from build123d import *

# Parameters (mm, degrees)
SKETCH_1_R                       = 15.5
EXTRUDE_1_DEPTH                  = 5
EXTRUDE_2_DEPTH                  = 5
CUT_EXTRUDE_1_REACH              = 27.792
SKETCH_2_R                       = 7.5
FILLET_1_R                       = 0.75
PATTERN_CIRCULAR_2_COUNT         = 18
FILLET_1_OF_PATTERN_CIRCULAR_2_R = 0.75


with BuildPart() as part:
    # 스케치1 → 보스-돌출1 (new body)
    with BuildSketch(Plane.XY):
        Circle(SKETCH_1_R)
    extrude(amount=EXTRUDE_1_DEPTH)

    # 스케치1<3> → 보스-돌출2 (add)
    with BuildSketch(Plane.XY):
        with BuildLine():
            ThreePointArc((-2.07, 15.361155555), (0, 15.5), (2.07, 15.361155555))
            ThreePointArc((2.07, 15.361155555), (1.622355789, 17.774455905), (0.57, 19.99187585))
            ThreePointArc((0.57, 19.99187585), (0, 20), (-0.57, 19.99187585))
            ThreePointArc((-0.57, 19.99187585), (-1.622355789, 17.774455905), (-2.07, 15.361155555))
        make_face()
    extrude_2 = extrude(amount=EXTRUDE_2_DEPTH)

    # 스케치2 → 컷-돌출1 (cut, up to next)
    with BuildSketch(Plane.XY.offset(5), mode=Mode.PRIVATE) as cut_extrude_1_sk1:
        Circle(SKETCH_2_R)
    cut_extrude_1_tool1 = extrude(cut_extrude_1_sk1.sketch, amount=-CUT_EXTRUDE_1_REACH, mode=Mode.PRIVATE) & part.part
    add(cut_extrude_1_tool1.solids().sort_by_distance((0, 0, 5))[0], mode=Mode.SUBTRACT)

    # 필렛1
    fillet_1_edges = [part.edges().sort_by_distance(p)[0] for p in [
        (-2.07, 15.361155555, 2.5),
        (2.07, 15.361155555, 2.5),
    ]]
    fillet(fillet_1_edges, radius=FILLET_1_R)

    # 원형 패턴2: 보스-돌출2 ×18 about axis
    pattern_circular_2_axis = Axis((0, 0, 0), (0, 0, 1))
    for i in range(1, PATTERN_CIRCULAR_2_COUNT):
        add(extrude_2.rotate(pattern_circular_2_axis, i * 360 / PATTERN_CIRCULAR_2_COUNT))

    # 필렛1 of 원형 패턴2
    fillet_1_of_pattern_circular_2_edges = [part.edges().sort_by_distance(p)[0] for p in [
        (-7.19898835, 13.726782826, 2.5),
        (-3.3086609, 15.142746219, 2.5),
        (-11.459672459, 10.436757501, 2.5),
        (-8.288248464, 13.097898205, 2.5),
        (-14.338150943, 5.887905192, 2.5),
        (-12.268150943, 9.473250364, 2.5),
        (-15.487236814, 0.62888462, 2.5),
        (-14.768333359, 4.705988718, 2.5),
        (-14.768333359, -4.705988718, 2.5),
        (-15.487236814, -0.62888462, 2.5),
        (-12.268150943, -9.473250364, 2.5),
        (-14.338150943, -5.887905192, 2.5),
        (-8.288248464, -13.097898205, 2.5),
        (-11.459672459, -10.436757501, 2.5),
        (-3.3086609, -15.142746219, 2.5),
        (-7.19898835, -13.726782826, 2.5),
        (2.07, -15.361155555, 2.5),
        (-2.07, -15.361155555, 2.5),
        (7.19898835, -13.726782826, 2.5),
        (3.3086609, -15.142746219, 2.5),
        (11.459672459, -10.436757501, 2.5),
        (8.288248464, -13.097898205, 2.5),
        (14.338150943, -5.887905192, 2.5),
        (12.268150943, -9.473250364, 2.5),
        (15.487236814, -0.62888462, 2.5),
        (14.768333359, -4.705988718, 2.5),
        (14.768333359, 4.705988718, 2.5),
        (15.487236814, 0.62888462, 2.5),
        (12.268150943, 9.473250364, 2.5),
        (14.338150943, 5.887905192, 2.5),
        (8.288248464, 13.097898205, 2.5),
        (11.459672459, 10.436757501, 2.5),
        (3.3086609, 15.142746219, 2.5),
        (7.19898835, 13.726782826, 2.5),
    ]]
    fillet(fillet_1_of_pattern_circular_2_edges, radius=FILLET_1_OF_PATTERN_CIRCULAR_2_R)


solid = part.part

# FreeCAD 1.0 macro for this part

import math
import FreeCAD as App
import Part
import Sketcher

V = App.Vector
Q = App.Units.Quantity


def edges_at(feature, points):
    """Names of the edges that pass closest to the given points."""
    edges = feature.Shape.Edges
    near = lambda p: min(range(len(edges)), key=lambda i: edges[i].distToShape(Part.Vertex(*p))[0])
    return sorted({f"Edge{near(p) + 1}" for p in points})

doc = App.newDocument("Part")
params = doc.addObject("Spreadsheet::Sheet", "Params")
for row, (alias, value) in enumerate([
    ("sketch1_diameter", "31 mm"),
    ("pad1_length", "5 mm"),
    ("sketch2_radius", "20 mm"),
    ("sketch2_radius2", "15.5 mm"),
    ("pad2_length", "5 mm"),
    ("sketch3_diameter", "15 mm"),
    ("fillet_radius", "0.75 mm"),
    ("fillet2_radius", "0.75 mm"),
], start=1):
    params.set(f"A{row}", alias)
    params.set(f"B{row}", "=" + value)
    params.setAlias(f"B{row}", alias)

body = doc.addObject("PartDesign::Body", "Body")

# Sketch on XY plane
sketch1 = body.newObject("Sketcher::SketchObject", "Sketch")
sketch1.AttachmentSupport = (doc.getObject("XY_Plane"), [""])
sketch1.MapMode = "FlatFace"
sketch1.addGeometry(Part.Circle(V(0, 0, 0), V(0, 0, 1), 16), False)
sketch1.addConstraint(Sketcher.Constraint("Coincident", 0, 3, -1, 1))
sketch1.addConstraint(Sketcher.Constraint("Diameter", 0, Q("31 mm")))
sketch1.setExpression("Constraints[1]", "Params.sketch1_diameter")
pad1 = body.newObject("PartDesign::Pad", "Pad")
pad1.Profile = sketch1
pad1.setExpression("Length", "Params.pad1_length")

# Sketch on XY plane
sketch2 = body.newObject("Sketcher::SketchObject", "Sketch001")
sketch2.AttachmentSupport = (doc.getObject("XY_Plane"), [""])
sketch2.MapMode = "FlatFace"
sketch2.addGeometry(Part.ArcOfCircle(Part.Circle(V(0, 0, 0), V(0, 0, 1), 15.5), math.radians(82.33), math.radians(97.67)), False)
sketch2.addGeometry(Part.ArcOfCircle(Part.Circle(V(-7.4, 14.9, 0), V(0, 0, 1), 9.5), math.radians(3), math.radians(33)), False)
sketch2.addGeometry(Part.ArcOfCircle(Part.Circle(V(0, 0, 0), V(0, 0, 1), 20), math.radians(88.37), math.radians(91.63)), False)
sketch2.addGeometry(Part.ArcOfCircle(Part.Circle(V(7.4, 14.9, 0), V(0, 0, 1), 9.5), math.radians(147), math.radians(177)), False)
sketch2.addConstraint(Sketcher.Constraint("Coincident", 0, 1, 1, 1))
sketch2.addConstraint(Sketcher.Constraint("Coincident", 1, 2, 2, 1))
sketch2.addConstraint(Sketcher.Constraint("Coincident", 2, 2, 3, 1))
sketch2.addConstraint(Sketcher.Constraint("Coincident", 3, 2, 0, 2))
sketch2.addConstraint(Sketcher.Constraint("Coincident", 0, 3, -1, 1))
sketch2.addConstraint(Sketcher.Constraint("Coincident", 2, 3, -1, 1))
sketch2.addConstraint(Sketcher.Constraint("Equal", 1, 3))
sketch2.addConstraint(Sketcher.Constraint("Symmetric", 1, 3, 3, 3, -2))
sketch2.addConstraint(Sketcher.Constraint("Radius", 2, Q("20 mm")))
sketch2.addConstraint(Sketcher.Constraint("Radius", 0, Q("15.5 mm")))
sketch2.addConstraint(Sketcher.Constraint("DistanceX", 1, 2, 0, 1, Q("1.5 mm")))
sketch2.addConstraint(Sketcher.Constraint("DistanceX", -1, 1, 0, 1, Q("2.07 mm")))
sketch2.addConstraint(Sketcher.Constraint("Radius", 1, Q("9.477616 mm")))
sketch2.setExpression("Constraints[8]", "Params.sketch2_radius")
sketch2.setExpression("Constraints[9]", "Params.sketch2_radius2")
pad2 = body.newObject("PartDesign::Pad", "Pad001")
pad2.Profile = sketch2
pad2.setExpression("Length", "Params.pad2_length")

# Sketch on XY plane
sketch3 = body.newObject("Sketcher::SketchObject", "Sketch002")
sketch3.AttachmentSupport = (doc.getObject("XY_Plane"), [""])
sketch3.MapMode = "FlatFace"
sketch3.AttachmentOffset = App.Placement(V(0, 0, 5), App.Rotation())
sketch3.addGeometry(Part.Circle(V(0, 0, 0), V(0, 0, 1), 8), False)
sketch3.addConstraint(Sketcher.Constraint("Coincident", 0, 3, -1, 1))
sketch3.addConstraint(Sketcher.Constraint("Diameter", 0, Q("15 mm")))
sketch3.setExpression("Constraints[1]", "Params.sketch3_diameter")
pocket1 = body.newObject("PartDesign::Pocket", "Pocket")
pocket1.Profile = sketch3
pocket1.Type = "UpToFirst"
doc.recompute()

fillet = body.newObject("PartDesign::Fillet", "Fillet")
fillet.Base = (pocket1, edges_at(pocket1, [(-2.07, 15.361, 2.5), (2.07, 15.361, 2.5)]))
fillet.setExpression("Radius", "Params.fillet_radius")
doc.recompute()

polarpattern = body.newObject("PartDesign::PolarPattern", "PolarPattern")
polarpattern.Originals = [pad2]
polarpattern.Axis = (doc.getObject("Z_Axis"), [""])
polarpattern.Angle = 360
polarpattern.Occurrences = 18
body.Tip = polarpattern
doc.recompute()

fillet2 = body.newObject("PartDesign::Fillet", "Fillet001")
fillet2.Base = (polarpattern, edges_at(polarpattern, [
    (-7.199, 13.727, 2.5),
    (-3.309, 15.143, 2.5),
    (-11.46, 10.437, 2.5),
    (-8.288, 13.098, 2.5),
    (-14.338, 5.888, 2.5),
    (-12.268, 9.473, 2.5),
    (-15.487, 0.629, 2.5),
    (-14.768, 4.706, 2.5),
    (-14.768, -4.706, 2.5),
    (-15.487, -0.629, 2.5),
    (-12.268, -9.473, 2.5),
    (-14.338, -5.888, 2.5),
    (-8.288, -13.098, 2.5),
    (-11.46, -10.437, 2.5),
    (-3.309, -15.143, 2.5),
    (-7.199, -13.727, 2.5),
    (2.07, -15.361, 2.5),
    (-2.07, -15.361, 2.5),
    (7.199, -13.727, 2.5),
    (3.309, -15.143, 2.5),
    (11.46, -10.437, 2.5),
    (8.288, -13.098, 2.5),
    (14.338, -5.888, 2.5),
    (12.268, -9.473, 2.5),
    (15.487, -0.629, 2.5),
    (14.768, -4.706, 2.5),
    (14.768, 4.706, 2.5),
    (15.487, 0.629, 2.5),
    (12.268, 9.473, 2.5),
    (14.338, 5.888, 2.5),
    (8.288, 13.098, 2.5),
    (11.46, 10.437, 2.5),
    (3.309, 15.143, 2.5),
    (7.199, 13.727, 2.5),
]))
fillet2.setExpression("Radius", "Params.fillet2_radius")

doc.recompute()
